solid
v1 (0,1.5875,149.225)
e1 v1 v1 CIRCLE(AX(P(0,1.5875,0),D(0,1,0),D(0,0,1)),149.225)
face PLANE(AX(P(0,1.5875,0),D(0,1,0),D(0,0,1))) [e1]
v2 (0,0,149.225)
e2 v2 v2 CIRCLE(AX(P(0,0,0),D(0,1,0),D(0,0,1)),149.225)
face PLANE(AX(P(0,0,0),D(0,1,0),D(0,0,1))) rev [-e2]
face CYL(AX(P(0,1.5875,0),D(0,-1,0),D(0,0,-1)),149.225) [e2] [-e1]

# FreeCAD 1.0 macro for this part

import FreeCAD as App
import Part
import Sketcher
from FreeCAD import Vector
Q = App.Units.Quantity

doc = App.newDocument("Part")
body = doc.addObject("PartDesign::Body", "Body")

# Sketch on XZ plane
sketch1 = body.newObject("Sketcher::SketchObject", "Sketch")
sketch1.AttachmentSupport = (doc.getObject("XZ_Plane"), [""])
sketch1.MapMode = "FlatFace"
sketch1.addGeometry(Part.Circle(Vector(0, 0, 0), Vector(0, 0, 1), 149), False)
sketch1.addConstraint(Sketcher.Constraint("Coincident", 0, 3, -1, 1))
sketch1.addConstraint(Sketcher.Constraint("Diameter", 0, Q("11.75 in")))
pad1 = body.newObject("PartDesign::Pad", "Pad")
pad1.Profile = sketch1
pad1.Length = Q("0.0625 in")
pad1.Reversed = True

doc.recompute()
